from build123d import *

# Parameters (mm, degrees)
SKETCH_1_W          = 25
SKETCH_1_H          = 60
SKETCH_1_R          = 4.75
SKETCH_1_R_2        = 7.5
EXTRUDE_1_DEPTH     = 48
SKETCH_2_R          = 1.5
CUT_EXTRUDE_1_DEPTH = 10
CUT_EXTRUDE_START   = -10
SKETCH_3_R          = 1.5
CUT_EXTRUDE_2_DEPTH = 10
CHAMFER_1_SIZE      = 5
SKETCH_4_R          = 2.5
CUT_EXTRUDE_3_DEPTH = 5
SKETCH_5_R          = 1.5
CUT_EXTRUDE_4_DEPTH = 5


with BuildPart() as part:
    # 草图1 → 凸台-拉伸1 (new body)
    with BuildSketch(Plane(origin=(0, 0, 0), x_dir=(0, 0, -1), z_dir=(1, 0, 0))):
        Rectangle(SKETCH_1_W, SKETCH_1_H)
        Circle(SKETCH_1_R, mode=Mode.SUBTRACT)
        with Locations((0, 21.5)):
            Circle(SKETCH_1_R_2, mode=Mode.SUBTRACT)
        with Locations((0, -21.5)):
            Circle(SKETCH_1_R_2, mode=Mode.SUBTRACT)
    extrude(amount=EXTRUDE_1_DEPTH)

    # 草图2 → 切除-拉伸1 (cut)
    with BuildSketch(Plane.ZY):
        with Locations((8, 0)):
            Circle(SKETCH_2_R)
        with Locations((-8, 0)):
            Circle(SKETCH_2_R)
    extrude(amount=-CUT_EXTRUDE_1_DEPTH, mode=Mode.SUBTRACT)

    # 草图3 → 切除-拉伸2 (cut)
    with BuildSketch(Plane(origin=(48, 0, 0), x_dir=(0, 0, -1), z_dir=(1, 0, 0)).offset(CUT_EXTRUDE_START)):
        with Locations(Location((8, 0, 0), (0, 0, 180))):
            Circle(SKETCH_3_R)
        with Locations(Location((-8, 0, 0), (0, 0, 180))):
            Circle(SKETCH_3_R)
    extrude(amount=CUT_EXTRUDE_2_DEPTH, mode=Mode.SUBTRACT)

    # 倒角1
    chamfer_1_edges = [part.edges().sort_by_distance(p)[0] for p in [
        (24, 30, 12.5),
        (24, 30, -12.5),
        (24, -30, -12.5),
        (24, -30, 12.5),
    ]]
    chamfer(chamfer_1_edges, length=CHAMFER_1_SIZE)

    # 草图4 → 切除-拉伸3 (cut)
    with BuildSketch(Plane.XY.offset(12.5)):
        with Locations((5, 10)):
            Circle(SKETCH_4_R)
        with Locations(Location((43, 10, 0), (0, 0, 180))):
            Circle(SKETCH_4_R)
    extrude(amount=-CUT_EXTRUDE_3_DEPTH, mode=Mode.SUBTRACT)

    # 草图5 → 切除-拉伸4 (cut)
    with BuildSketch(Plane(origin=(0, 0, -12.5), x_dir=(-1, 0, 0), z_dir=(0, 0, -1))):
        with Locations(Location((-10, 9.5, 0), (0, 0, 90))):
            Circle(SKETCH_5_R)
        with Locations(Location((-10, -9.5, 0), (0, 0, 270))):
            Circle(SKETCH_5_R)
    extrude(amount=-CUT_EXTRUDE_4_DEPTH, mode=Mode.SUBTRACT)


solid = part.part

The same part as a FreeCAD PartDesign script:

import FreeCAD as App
import Part
import Sketcher

V = App.Vector
Q = App.Units.Quantity


def edges_at(feature, points):
    """Names of the edges that pass closest to the given points."""
    edges = feature.Shape.Edges
    near = lambda p: min(range(len(edges)), key=lambda i: edges[i].distToShape(Part.Vertex(*p))[0])
    return sorted({f"Edge{near(p) + 1}" for p in points})


def add_polygon(sketch, points):
    """Adds a closed chain of lines whose ends are joined by coincident constraints."""
    first, n = sketch.GeometryCount, len(points)
    for a, b in zip(points, points[1:] + points[:1]):
        sketch.addGeometry(Part.LineSegment(App.Vector(*a, 0), App.Vector(*b, 0)), False)
    for i in range(n):
        sketch.addConstraint(Sketcher.Constraint("Coincident", first + i, 2, first + (i + 1) % n, 1))

doc = App.newDocument("Part")
params = doc.addObject("Spreadsheet::Sheet", "Params")
for row, (alias, value) in enumerate([
    ("sketch1_diameter", "15 mm"),
    ("sketch1_diameter2", "9.5 mm"),
    ("sketch1_width", "60 mm"),
    ("sketch1_height", "25 mm"),
    ("pad1_length", "48 mm"),
    ("sketch2_diameter", "3 mm"),
    ("pocket1_length", "10 mm"),
    ("sketch3_diameter", "3 mm"),
    ("pocket2_length", "10 mm"),
    ("chamfer_size", "5 mm"),
    ("sketch4_diameter", "5 mm"),
    ("pocket3_length", "5 mm"),
    ("sketch5_diameter", "3 mm"),
    ("pocket4_length", "5 mm"),
], start=1):
    params.set(f"A{row}", alias)
    params.set(f"B{row}", "=" + value)
    params.setAlias(f"B{row}", alias)

body = doc.addObject("PartDesign::Body", "Body")

# Sketch on YZ plane
sketch1 = doc.addObject("Sketcher::SketchObject", "Sketch")
body.addObject(sketch1)
sketch1.AttachmentSupport = (doc.YZ_Plane, [""])
sketch1.MapMode = "FlatFace"
add_polygon(sketch1, [(30, 12.5), (-30, 12.5), (-30, -12.5), (30, -12.5)])  # lines 0-3
sketch1.addGeometry(Part.Circle(V(-21.5, 0, 0), V(0, 0, 1), 7.5), False)  # 4
sketch1.addGeometry(Part.Circle(V(0, 0, 0), V(0, 0, 1), 4.75), False)  # 5
sketch1.addGeometry(Part.Circle(V(21.5, 0, 0), V(0, 0, 1), 7.5), False)  # 6
sketch1.addConstraint([
    Sketcher.Constraint("Horizontal", 0),
    Sketcher.Constraint("Vertical", 1),
    Sketcher.Constraint("Horizontal", 2),
    Sketcher.Constraint("Vertical", 3),
    Sketcher.Constraint("Coincident", 5, 3, -1, 1),
    Sketcher.Constraint("Equal", 4, 6),
    Sketcher.Constraint("Symmetric", 4, 3, 6, 3, -1, 1),
    Sketcher.Constraint("Symmetric", 0, 2, 2, 2, -1, 1),
    Sketcher.Constraint("PointOnObject", 4, 3, -1),
    Sketcher.Constraint("Diameter", 4, Q("15 mm")),
    Sketcher.Constraint("Diameter", 5, Q("9.5 mm")),
    Sketcher.Constraint("DistanceX", 0, 2, 0, 1, Q("60 mm")),
    Sketcher.Constraint("DistanceY", 1, 2, 1, 1, Q("25 mm")),
    Sketcher.Constraint("DistanceX", 4, 3, 6, 3, Q("43 mm")),
])
sketch1.setExpression("Constraints[13]", "Params.sketch1_diameter")
sketch1.setExpression("Constraints[14]", "Params.sketch1_diameter2")
sketch1.setExpression("Constraints[15]", "Params.sketch1_width")
sketch1.setExpression("Constraints[16]", "Params.sketch1_height")
pad1 = doc.addObject("PartDesign::Pad", "Pad")
body.addObject(pad1)
pad1.Profile = sketch1
pad1.setExpression("Length", "Params.pad1_length")

# Sketch on YZ plane
sketch2 = doc.addObject("Sketcher::SketchObject", "Sketch001")
body.addObject(sketch2)
sketch2.AttachmentSupport = (doc.YZ_Plane, [""])
sketch2.MapMode = "FlatFace"
sketch2.addGeometry([
    Part.Circle(V(0, 8, 0), V(0, 0, 1), 1.5),
    Part.Circle(V(0, -8, 0), V(0, 0, 1), 1.5),
], False)
sketch2.addConstraint([
    Sketcher.Constraint("Equal", 0, 1),
    Sketcher.Constraint("Symmetric", 0, 3, 1, 3, -1, 1),
    Sketcher.Constraint("PointOnObject", 0, 3, -2),
    Sketcher.Constraint("Diameter", 0, Q("3 mm")),
    Sketcher.Constraint("DistanceY", -1, 1, 0, 3, Q("8 mm")),
])
sketch2.setExpression("Constraints[3]", "Params.sketch2_diameter")
pocket1 = doc.addObject("PartDesign::Pocket", "Pocket")
body.addObject(pocket1)
pocket1.Profile = sketch2
pocket1.setExpression("Length", "Params.pocket1_length")
pocket1.Reversed = True

# Sketch on YZ plane
sketch3 = doc.addObject("Sketcher::SketchObject", "Sketch002")
body.addObject(sketch3)
sketch3.AttachmentSupport = (doc.YZ_Plane, [""])
sketch3.MapMode = "FlatFace"
sketch3.AttachmentOffset = App.Placement(V(0, 0, 38), App.Rotation())
sketch3.addGeometry([
    Part.Circle(V(0, -8, 0), V(0, 0, 1), 1.5),
    Part.Circle(V(0, 8, 0), V(0, 0, 1), 1.5),
], False)
sketch3.addConstraint([
    Sketcher.Constraint("Equal", 0, 1),
    Sketcher.Constraint("Symmetric", 0, 3, 1, 3, -1, 1),
    Sketcher.Constraint("PointOnObject", 0, 3, -2),
    Sketcher.Constraint("Diameter", 0, Q("3 mm")),
    Sketcher.Constraint("DistanceY", 0, 3, -1, 1, Q("8 mm")),
])
sketch3.setExpression("Constraints[3]", "Params.sketch3_diameter")
pocket2 = doc.addObject("PartDesign::Pocket", "Pocket001")
body.addObject(pocket2)
pocket2.Profile = sketch3
pocket2.setExpression("Length", "Params.pocket2_length")
pocket2.Reversed = True
doc.recompute()

chamfer = doc.addObject("PartDesign::Chamfer", "Chamfer")
body.addObject(chamfer)
chamfer.Base = (pocket2, edges_at(pocket2, [
    (24, 30, 12.5),
    (24, 30, -12.5),
    (24, -30, -12.5),
    (24, -30, 12.5),
]))
chamfer.setExpression("Size", "Params.chamfer_size")

# Sketch on XY plane
sketch4 = doc.addObject("Sketcher::SketchObject", "Sketch003")
body.addObject(sketch4)
sketch4.AttachmentSupport = (doc.XY_Plane, [""])
sketch4.MapMode = "FlatFace"
sketch4.AttachmentOffset = App.Placement(V(0, 0, 12.5), App.Rotation())
sketch4.addGeometry([
    Part.Circle(V(5, 10, 0), V(0, 0, 1), 2.5),
    Part.Circle(V(43, 10, 0), V(0, 0, 1), 2.5),
], False)
sketch4.addConstraint([
    Sketcher.Constraint("Equal", 0, 1),
    Sketcher.Constraint("Horizontal", 0, 3, 1, 3),
    Sketcher.Constraint("Diameter", 0, Q("5 mm")),
    Sketcher.Constraint("DistanceX", -1, 1, 0, 3, Q("5 mm")),
    Sketcher.Constraint("DistanceY", -1, 1, 0, 3, Q("10 mm")),
    Sketcher.Constraint("DistanceX", -1, 1, 1, 3, Q("43 mm")),
])
sketch4.setExpression("Constraints[2]", "Params.sketch4_diameter")
pocket3 = doc.addObject("PartDesign::Pocket", "Pocket002")
body.addObject(pocket3)
pocket3.Profile = sketch4
pocket3.setExpression("Length", "Params.pocket3_length")

# Sketch on XY plane
sketch5 = doc.addObject("Sketcher::SketchObject", "Sketch004")
body.addObject(sketch5)
sketch5.AttachmentSupport = (doc.XY_Plane, [""])
sketch5.MapMode = "FlatFace"
sketch5.AttachmentOffset = App.Placement(V(0, 0, -12.5), App.Rotation())
sketch5.addGeometry([
    Part.Circle(V(10, 9.5, 0), V(0, 0, 1), 1.5),
    Part.Circle(V(10, -9.5, 0), V(0, 0, 1), 1.5),
], False)
sketch5.addConstraint([
    Sketcher.Constraint("Equal", 0, 1),
    Sketcher.Constraint("Symmetric", 0, 3, 1, 3, -1),
    Sketcher.Constraint("Diameter", 0, Q("3 mm")),
    Sketcher.Constraint("DistanceX", -1, 1, 0, 3, Q("10 mm")),
    Sketcher.Constraint("DistanceY", 1, 3, 0, 3, Q("19 mm")),
])
sketch5.setExpression("Constraints[2]", "Params.sketch5_diameter")
pocket4 = doc.addObject("PartDesign::Pocket", "Pocket003")
body.addObject(pocket4)
pocket4.Profile = sketch5
pocket4.setExpression("Length", "Params.pocket4_length")
pocket4.Reversed = True

doc.recompute()
